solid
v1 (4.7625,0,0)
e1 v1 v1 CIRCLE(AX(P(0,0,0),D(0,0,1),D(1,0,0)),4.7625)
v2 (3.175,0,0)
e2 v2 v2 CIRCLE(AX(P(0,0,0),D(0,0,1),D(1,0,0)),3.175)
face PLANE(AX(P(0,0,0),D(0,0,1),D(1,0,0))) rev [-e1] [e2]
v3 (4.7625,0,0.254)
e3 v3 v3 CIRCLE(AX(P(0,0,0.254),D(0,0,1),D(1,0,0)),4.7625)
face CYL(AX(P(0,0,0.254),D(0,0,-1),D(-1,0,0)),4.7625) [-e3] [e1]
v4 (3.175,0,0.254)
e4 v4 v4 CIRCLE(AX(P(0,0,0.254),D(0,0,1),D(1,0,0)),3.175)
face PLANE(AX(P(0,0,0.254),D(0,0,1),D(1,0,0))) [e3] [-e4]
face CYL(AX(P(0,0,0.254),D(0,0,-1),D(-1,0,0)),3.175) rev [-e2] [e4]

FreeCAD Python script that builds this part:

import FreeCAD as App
import Part
import Sketcher

V = App.Vector
Q = App.Units.Quantity

doc = App.newDocument("Part")
body = doc.addObject("PartDesign::Body", "Body")

sketch1 = body.newObject("Sketcher::SketchObject", "Sketch")
sketch1.AttachmentSupport = (doc.getObject("XY_Plane"), [""])
sketch1.MapMode = "FlatFace"
sketch1.addGeometry(Part.Circle(V(0, 0, 0), V(0, 0, 1), 4.8), False)
sketch1.addGeometry(Part.Circle(V(0, 0, 0), V(0, 0, 1), 3.2), False)
sketch1.addConstraint(Sketcher.Constraint("Coincident", 0, 3, -1, 1))
sketch1.addConstraint(Sketcher.Constraint("Coincident", 1, 3, -1, 1))
sketch1.addConstraint(Sketcher.Constraint("Diameter", 1, Q("0.25 in")))
sketch1.addConstraint(Sketcher.Constraint("Diameter", 0, Q("0.375 in")))
pad1 = body.newObject("PartDesign::Pad", "Pad")
pad1.Profile = sketch1
pad1.Length = Q("0.01 in")

doc.recompute()
